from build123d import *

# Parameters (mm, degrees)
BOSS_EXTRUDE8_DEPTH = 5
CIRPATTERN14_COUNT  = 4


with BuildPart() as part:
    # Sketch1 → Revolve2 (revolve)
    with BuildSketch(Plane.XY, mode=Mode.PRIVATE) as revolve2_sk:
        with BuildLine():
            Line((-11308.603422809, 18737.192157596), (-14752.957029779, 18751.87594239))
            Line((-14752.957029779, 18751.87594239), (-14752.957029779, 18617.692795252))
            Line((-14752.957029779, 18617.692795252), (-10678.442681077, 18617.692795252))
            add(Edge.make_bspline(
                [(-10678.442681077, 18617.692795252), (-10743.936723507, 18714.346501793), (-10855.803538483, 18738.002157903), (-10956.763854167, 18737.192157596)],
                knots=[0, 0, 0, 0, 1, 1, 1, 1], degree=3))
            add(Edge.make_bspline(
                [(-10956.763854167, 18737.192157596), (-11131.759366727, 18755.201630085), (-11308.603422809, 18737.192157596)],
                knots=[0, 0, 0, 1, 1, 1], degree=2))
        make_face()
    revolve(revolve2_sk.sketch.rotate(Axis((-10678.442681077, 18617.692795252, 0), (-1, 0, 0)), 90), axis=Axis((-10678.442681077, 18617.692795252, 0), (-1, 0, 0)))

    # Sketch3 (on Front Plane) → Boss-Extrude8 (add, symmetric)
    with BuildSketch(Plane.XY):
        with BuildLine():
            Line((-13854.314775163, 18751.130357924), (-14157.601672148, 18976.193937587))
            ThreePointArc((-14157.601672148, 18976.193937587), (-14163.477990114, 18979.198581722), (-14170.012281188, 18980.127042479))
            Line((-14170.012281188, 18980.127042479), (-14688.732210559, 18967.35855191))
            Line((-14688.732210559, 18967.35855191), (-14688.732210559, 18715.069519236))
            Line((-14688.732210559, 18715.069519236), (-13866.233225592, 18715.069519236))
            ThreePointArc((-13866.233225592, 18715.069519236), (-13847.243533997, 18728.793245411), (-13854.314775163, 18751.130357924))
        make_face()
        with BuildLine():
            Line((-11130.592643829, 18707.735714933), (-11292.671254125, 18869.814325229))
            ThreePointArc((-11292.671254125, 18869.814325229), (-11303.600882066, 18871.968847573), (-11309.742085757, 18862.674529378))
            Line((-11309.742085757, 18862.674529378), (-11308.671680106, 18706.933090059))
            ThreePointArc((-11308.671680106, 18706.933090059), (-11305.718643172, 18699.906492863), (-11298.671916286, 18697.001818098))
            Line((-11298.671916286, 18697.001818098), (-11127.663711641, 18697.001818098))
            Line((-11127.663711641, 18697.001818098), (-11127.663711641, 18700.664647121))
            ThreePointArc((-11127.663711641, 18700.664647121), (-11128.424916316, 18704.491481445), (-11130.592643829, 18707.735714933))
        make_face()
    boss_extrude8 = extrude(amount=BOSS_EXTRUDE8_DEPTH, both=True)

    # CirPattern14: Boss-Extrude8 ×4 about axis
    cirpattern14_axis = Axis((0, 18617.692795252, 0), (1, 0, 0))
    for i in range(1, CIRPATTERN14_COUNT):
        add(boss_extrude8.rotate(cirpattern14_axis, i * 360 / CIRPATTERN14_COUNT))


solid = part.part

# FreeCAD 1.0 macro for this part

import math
import FreeCAD as App
import Part
import Sketcher

V = App.Vector
Q = App.Units.Quantity

doc = App.newDocument("Part")
body = doc.addObject("PartDesign::Body", "Body")

# Sketch on XY plane
sketch1 = body.newObject("Sketcher::SketchObject", "Sketch")
sketch1.AttachmentSupport = (doc.getObject("XY_Plane"), [""])
sketch1.MapMode = "FlatFace"
sketch1.addGeometry([
    Part.LineSegment(V(-11308.603423, 18737.192158, 0), V(-14752.95703, 18751.875942, 0)),  # 0
    Part.LineSegment(V(-14752.95703, 18751.875942, 0), V(-14752.95703, 18617.692795, 0)),  # 1
    Part.LineSegment(V(-14752.95703, 18617.692795, 0), V(-10678.442681, 18617.692795, 0)),  # 2
    Part.BSplineCurve([V(-10678.442681, 18617.692795, 0), V(-10743.936724, 18714.346502, 0), V(-10855.803538, 18738.002158, 0), V(-10956.763854, 18737.192158, 0)], [4, 4], [0, 1], False, 3, [1, 1, 1, 1], False),  # 3
    Part.BSplineCurve([V(-10956.763854, 18737.192158, 0), V(-11131.759367, 18755.20163, 0), V(-11308.603423, 18737.192158, 0)], [3, 3], [0, 1], False, 2, [1, 1, 1], False),  # 4
], False)
sketch1.addGeometry(Part.LineSegment(V(-10678.442681, 18617.692795, 0), V(-14752.95703, 18617.692795, 0)), True)  # axis
sketch1.addConstraint([
    Sketcher.Constraint("Block", 3),
    Sketcher.Constraint("Block", 4),
    Sketcher.Constraint("Coincident", 0, 2, 1, 1),
    Sketcher.Constraint("Coincident", 1, 2, 2, 1),
    Sketcher.Constraint("Coincident", 2, 2, 3, 1),
    Sketcher.Constraint("Coincident", 4, 2, 0, 1),
    Sketcher.Constraint("Vertical", 1),
    Sketcher.Constraint("Horizontal", 2),
    Sketcher.Constraint("Horizontal", 5),
    Sketcher.Constraint("Coincident", 5, 1, 2, 2),
    Sketcher.Constraint("Vertical", 0, 2, 5, 2),
    Sketcher.Constraint("DistanceX", 2, 1, 2, 2, Q("4074.514349 mm")),
    Sketcher.Constraint("DistanceY", 1, 2, 1, 1, Q("134.183147 mm")),
])
revolution = body.newObject("PartDesign::Revolution", "Revolution")
revolution.Profile = sketch1
revolution.ReferenceAxis = (sketch1, ["Axis0"])
revolution.Angle = 360

# Sketch on XY plane
sketch2 = body.newObject("Sketcher::SketchObject", "Sketch001")
sketch2.AttachmentSupport = (doc.getObject("XY_Plane"), [""])
sketch2.MapMode = "FlatFace"
sketch2.addGeometry([
    Part.LineSegment(V(-13854.3, 18751.1, 0), V(-14157.6, 18976.2, 0)),  # 0
    Part.ArcOfCircle(Part.Circle(V(-14169.5, 18960.1, 0), V(0, 0, 1), 20), math.radians(53), math.radians(91)),  # 1
    Part.LineSegment(V(-14170, 18980.1, 0), V(-14688.7, 18967.4, 0)),  # 2
    Part.LineSegment(V(-14688.7, 18967.4, 0), V(-14688.7, 18715.1, 0)),  # 3
    Part.LineSegment(V(-14688.7, 18715.1, 0), V(-13866.2, 18715.1, 0)),  # 4
    Part.ArcOfCircle(Part.Circle(V(-13866.2, 18735.1, 0), V(0, 0, 1), 20), math.radians(-90), math.radians(53)),  # 5
    Part.LineSegment(V(-11130.6, 18707.7, 0), V(-11292.7, 18869.8, 0)),  # 6
    Part.ArcOfCircle(Part.Circle(V(-11299.7, 18862.7, 0), V(0, 0, 1), 10), math.radians(45), math.radians(180)),  # 7
    Part.LineSegment(V(-11309.7, 18862.7, 0), V(-11308.7, 18706.9, 0)),  # 8
    Part.ArcOfCircle(Part.Circle(V(-11298.7, 18707, 0), V(0, 0, 1), 10), math.radians(-180), math.radians(-90)),  # 9
    Part.LineSegment(V(-11298.7, 18697, 0), V(-11127.7, 18697, 0)),  # 10
    Part.LineSegment(V(-11127.7, 18697, 0), V(-11127.7, 18700.7, 0)),  # 11
    Part.ArcOfCircle(Part.Circle(V(-11137.7, 18700.7, 0), V(0, 0, 1), 10), math.radians(0), math.radians(45)),  # 12
], False)
sketch2.addConstraint([
    Sketcher.Constraint("Tangent", 0, 2, 1, 1),
    Sketcher.Constraint("Tangent", 1, 2, 2, 1),
    Sketcher.Constraint("Coincident", 2, 2, 3, 1),
    Sketcher.Constraint("Coincident", 3, 2, 4, 1),
    Sketcher.Constraint("Tangent", 4, 2, 5, 1),
    Sketcher.Constraint("Tangent", 5, 2, 0, 1),
    Sketcher.Constraint("Tangent", 6, 2, 7, 1),
    Sketcher.Constraint("Tangent", 7, 2, 8, 1),
    Sketcher.Constraint("Tangent", 8, 2, 9, 1),
    Sketcher.Constraint("Tangent", 9, 2, 10, 1),
    Sketcher.Constraint("Coincident", 10, 2, 11, 1),
    Sketcher.Constraint("Tangent", 11, 2, 12, 1),
    Sketcher.Constraint("Tangent", 12, 2, 6, 1),
    Sketcher.Constraint("Vertical", 3),
    Sketcher.Constraint("Horizontal", 4),
    Sketcher.Constraint("Horizontal", 10),
    Sketcher.Constraint("Vertical", 11),
    Sketcher.Constraint("Equal", 1, 5),
    Sketcher.Constraint("Equal", 7, 9),
    Sketcher.Constraint("Equal", 9, 12),
    Sketcher.Constraint("Radius", 1, Q("20 mm")),
    Sketcher.Constraint("Radius", 7, Q("10 mm")),
    Sketcher.Constraint("Angle", 6, Q("135 deg")),
    Sketcher.Constraint("DistanceY", 11, 1, 11, 2, Q("3.662829 mm")),
    Sketcher.Constraint("DistanceY", -1, 1, 1, 3, Q("18960.133099 mm")),
    Sketcher.Constraint("DistanceX", 1, 3, 7, 3, Q("2869.777801 mm")),
    Sketcher.Constraint("DistanceY", 9, 3, 5, 3, Q("28.067701 mm")),
    Sketcher.Constraint("Distance", 6, Q("229.213769 mm")),
    Sketcher.Constraint("DistanceX", 4, 1, 4, 2, Q("822.498985 mm")),
    Sketcher.Constraint("DistanceX", 10, 1, 10, 2, Q("171.008205 mm")),
    Sketcher.Constraint("DistanceY", 3, 2, 3, 1, Q("252.289033 mm")),
    Sketcher.Constraint("DistanceY", -1, 1, 5, 3, Q("18735.069519 mm")),
    Sketcher.Constraint("DistanceX", 7, 3, -1, 1, Q("11299.742322 mm")),
    Sketcher.Constraint("DistanceX", 2, 2, -1, 1, Q("14688.732211 mm")),
])
pad1 = body.newObject("PartDesign::Pad", "Pad")
pad1.Profile = sketch2
pad1.Length = 10
pad1.Midplane = True
doc.recompute()

datumline = body.newObject("PartDesign::Line", "DatumLine")
datumline.Placement = App.Placement(V(0, 18617.692795, 0), App.Rotation(V(0, 0, 1), V(1, 0, 0)))
polarpattern = body.newObject("PartDesign::PolarPattern", "PolarPattern")
polarpattern.Originals = [pad1]
polarpattern.Axis = (datumline, [""])
polarpattern.Angle = 360
polarpattern.Occurrences = 4
body.Tip = polarpattern

doc.recompute()
